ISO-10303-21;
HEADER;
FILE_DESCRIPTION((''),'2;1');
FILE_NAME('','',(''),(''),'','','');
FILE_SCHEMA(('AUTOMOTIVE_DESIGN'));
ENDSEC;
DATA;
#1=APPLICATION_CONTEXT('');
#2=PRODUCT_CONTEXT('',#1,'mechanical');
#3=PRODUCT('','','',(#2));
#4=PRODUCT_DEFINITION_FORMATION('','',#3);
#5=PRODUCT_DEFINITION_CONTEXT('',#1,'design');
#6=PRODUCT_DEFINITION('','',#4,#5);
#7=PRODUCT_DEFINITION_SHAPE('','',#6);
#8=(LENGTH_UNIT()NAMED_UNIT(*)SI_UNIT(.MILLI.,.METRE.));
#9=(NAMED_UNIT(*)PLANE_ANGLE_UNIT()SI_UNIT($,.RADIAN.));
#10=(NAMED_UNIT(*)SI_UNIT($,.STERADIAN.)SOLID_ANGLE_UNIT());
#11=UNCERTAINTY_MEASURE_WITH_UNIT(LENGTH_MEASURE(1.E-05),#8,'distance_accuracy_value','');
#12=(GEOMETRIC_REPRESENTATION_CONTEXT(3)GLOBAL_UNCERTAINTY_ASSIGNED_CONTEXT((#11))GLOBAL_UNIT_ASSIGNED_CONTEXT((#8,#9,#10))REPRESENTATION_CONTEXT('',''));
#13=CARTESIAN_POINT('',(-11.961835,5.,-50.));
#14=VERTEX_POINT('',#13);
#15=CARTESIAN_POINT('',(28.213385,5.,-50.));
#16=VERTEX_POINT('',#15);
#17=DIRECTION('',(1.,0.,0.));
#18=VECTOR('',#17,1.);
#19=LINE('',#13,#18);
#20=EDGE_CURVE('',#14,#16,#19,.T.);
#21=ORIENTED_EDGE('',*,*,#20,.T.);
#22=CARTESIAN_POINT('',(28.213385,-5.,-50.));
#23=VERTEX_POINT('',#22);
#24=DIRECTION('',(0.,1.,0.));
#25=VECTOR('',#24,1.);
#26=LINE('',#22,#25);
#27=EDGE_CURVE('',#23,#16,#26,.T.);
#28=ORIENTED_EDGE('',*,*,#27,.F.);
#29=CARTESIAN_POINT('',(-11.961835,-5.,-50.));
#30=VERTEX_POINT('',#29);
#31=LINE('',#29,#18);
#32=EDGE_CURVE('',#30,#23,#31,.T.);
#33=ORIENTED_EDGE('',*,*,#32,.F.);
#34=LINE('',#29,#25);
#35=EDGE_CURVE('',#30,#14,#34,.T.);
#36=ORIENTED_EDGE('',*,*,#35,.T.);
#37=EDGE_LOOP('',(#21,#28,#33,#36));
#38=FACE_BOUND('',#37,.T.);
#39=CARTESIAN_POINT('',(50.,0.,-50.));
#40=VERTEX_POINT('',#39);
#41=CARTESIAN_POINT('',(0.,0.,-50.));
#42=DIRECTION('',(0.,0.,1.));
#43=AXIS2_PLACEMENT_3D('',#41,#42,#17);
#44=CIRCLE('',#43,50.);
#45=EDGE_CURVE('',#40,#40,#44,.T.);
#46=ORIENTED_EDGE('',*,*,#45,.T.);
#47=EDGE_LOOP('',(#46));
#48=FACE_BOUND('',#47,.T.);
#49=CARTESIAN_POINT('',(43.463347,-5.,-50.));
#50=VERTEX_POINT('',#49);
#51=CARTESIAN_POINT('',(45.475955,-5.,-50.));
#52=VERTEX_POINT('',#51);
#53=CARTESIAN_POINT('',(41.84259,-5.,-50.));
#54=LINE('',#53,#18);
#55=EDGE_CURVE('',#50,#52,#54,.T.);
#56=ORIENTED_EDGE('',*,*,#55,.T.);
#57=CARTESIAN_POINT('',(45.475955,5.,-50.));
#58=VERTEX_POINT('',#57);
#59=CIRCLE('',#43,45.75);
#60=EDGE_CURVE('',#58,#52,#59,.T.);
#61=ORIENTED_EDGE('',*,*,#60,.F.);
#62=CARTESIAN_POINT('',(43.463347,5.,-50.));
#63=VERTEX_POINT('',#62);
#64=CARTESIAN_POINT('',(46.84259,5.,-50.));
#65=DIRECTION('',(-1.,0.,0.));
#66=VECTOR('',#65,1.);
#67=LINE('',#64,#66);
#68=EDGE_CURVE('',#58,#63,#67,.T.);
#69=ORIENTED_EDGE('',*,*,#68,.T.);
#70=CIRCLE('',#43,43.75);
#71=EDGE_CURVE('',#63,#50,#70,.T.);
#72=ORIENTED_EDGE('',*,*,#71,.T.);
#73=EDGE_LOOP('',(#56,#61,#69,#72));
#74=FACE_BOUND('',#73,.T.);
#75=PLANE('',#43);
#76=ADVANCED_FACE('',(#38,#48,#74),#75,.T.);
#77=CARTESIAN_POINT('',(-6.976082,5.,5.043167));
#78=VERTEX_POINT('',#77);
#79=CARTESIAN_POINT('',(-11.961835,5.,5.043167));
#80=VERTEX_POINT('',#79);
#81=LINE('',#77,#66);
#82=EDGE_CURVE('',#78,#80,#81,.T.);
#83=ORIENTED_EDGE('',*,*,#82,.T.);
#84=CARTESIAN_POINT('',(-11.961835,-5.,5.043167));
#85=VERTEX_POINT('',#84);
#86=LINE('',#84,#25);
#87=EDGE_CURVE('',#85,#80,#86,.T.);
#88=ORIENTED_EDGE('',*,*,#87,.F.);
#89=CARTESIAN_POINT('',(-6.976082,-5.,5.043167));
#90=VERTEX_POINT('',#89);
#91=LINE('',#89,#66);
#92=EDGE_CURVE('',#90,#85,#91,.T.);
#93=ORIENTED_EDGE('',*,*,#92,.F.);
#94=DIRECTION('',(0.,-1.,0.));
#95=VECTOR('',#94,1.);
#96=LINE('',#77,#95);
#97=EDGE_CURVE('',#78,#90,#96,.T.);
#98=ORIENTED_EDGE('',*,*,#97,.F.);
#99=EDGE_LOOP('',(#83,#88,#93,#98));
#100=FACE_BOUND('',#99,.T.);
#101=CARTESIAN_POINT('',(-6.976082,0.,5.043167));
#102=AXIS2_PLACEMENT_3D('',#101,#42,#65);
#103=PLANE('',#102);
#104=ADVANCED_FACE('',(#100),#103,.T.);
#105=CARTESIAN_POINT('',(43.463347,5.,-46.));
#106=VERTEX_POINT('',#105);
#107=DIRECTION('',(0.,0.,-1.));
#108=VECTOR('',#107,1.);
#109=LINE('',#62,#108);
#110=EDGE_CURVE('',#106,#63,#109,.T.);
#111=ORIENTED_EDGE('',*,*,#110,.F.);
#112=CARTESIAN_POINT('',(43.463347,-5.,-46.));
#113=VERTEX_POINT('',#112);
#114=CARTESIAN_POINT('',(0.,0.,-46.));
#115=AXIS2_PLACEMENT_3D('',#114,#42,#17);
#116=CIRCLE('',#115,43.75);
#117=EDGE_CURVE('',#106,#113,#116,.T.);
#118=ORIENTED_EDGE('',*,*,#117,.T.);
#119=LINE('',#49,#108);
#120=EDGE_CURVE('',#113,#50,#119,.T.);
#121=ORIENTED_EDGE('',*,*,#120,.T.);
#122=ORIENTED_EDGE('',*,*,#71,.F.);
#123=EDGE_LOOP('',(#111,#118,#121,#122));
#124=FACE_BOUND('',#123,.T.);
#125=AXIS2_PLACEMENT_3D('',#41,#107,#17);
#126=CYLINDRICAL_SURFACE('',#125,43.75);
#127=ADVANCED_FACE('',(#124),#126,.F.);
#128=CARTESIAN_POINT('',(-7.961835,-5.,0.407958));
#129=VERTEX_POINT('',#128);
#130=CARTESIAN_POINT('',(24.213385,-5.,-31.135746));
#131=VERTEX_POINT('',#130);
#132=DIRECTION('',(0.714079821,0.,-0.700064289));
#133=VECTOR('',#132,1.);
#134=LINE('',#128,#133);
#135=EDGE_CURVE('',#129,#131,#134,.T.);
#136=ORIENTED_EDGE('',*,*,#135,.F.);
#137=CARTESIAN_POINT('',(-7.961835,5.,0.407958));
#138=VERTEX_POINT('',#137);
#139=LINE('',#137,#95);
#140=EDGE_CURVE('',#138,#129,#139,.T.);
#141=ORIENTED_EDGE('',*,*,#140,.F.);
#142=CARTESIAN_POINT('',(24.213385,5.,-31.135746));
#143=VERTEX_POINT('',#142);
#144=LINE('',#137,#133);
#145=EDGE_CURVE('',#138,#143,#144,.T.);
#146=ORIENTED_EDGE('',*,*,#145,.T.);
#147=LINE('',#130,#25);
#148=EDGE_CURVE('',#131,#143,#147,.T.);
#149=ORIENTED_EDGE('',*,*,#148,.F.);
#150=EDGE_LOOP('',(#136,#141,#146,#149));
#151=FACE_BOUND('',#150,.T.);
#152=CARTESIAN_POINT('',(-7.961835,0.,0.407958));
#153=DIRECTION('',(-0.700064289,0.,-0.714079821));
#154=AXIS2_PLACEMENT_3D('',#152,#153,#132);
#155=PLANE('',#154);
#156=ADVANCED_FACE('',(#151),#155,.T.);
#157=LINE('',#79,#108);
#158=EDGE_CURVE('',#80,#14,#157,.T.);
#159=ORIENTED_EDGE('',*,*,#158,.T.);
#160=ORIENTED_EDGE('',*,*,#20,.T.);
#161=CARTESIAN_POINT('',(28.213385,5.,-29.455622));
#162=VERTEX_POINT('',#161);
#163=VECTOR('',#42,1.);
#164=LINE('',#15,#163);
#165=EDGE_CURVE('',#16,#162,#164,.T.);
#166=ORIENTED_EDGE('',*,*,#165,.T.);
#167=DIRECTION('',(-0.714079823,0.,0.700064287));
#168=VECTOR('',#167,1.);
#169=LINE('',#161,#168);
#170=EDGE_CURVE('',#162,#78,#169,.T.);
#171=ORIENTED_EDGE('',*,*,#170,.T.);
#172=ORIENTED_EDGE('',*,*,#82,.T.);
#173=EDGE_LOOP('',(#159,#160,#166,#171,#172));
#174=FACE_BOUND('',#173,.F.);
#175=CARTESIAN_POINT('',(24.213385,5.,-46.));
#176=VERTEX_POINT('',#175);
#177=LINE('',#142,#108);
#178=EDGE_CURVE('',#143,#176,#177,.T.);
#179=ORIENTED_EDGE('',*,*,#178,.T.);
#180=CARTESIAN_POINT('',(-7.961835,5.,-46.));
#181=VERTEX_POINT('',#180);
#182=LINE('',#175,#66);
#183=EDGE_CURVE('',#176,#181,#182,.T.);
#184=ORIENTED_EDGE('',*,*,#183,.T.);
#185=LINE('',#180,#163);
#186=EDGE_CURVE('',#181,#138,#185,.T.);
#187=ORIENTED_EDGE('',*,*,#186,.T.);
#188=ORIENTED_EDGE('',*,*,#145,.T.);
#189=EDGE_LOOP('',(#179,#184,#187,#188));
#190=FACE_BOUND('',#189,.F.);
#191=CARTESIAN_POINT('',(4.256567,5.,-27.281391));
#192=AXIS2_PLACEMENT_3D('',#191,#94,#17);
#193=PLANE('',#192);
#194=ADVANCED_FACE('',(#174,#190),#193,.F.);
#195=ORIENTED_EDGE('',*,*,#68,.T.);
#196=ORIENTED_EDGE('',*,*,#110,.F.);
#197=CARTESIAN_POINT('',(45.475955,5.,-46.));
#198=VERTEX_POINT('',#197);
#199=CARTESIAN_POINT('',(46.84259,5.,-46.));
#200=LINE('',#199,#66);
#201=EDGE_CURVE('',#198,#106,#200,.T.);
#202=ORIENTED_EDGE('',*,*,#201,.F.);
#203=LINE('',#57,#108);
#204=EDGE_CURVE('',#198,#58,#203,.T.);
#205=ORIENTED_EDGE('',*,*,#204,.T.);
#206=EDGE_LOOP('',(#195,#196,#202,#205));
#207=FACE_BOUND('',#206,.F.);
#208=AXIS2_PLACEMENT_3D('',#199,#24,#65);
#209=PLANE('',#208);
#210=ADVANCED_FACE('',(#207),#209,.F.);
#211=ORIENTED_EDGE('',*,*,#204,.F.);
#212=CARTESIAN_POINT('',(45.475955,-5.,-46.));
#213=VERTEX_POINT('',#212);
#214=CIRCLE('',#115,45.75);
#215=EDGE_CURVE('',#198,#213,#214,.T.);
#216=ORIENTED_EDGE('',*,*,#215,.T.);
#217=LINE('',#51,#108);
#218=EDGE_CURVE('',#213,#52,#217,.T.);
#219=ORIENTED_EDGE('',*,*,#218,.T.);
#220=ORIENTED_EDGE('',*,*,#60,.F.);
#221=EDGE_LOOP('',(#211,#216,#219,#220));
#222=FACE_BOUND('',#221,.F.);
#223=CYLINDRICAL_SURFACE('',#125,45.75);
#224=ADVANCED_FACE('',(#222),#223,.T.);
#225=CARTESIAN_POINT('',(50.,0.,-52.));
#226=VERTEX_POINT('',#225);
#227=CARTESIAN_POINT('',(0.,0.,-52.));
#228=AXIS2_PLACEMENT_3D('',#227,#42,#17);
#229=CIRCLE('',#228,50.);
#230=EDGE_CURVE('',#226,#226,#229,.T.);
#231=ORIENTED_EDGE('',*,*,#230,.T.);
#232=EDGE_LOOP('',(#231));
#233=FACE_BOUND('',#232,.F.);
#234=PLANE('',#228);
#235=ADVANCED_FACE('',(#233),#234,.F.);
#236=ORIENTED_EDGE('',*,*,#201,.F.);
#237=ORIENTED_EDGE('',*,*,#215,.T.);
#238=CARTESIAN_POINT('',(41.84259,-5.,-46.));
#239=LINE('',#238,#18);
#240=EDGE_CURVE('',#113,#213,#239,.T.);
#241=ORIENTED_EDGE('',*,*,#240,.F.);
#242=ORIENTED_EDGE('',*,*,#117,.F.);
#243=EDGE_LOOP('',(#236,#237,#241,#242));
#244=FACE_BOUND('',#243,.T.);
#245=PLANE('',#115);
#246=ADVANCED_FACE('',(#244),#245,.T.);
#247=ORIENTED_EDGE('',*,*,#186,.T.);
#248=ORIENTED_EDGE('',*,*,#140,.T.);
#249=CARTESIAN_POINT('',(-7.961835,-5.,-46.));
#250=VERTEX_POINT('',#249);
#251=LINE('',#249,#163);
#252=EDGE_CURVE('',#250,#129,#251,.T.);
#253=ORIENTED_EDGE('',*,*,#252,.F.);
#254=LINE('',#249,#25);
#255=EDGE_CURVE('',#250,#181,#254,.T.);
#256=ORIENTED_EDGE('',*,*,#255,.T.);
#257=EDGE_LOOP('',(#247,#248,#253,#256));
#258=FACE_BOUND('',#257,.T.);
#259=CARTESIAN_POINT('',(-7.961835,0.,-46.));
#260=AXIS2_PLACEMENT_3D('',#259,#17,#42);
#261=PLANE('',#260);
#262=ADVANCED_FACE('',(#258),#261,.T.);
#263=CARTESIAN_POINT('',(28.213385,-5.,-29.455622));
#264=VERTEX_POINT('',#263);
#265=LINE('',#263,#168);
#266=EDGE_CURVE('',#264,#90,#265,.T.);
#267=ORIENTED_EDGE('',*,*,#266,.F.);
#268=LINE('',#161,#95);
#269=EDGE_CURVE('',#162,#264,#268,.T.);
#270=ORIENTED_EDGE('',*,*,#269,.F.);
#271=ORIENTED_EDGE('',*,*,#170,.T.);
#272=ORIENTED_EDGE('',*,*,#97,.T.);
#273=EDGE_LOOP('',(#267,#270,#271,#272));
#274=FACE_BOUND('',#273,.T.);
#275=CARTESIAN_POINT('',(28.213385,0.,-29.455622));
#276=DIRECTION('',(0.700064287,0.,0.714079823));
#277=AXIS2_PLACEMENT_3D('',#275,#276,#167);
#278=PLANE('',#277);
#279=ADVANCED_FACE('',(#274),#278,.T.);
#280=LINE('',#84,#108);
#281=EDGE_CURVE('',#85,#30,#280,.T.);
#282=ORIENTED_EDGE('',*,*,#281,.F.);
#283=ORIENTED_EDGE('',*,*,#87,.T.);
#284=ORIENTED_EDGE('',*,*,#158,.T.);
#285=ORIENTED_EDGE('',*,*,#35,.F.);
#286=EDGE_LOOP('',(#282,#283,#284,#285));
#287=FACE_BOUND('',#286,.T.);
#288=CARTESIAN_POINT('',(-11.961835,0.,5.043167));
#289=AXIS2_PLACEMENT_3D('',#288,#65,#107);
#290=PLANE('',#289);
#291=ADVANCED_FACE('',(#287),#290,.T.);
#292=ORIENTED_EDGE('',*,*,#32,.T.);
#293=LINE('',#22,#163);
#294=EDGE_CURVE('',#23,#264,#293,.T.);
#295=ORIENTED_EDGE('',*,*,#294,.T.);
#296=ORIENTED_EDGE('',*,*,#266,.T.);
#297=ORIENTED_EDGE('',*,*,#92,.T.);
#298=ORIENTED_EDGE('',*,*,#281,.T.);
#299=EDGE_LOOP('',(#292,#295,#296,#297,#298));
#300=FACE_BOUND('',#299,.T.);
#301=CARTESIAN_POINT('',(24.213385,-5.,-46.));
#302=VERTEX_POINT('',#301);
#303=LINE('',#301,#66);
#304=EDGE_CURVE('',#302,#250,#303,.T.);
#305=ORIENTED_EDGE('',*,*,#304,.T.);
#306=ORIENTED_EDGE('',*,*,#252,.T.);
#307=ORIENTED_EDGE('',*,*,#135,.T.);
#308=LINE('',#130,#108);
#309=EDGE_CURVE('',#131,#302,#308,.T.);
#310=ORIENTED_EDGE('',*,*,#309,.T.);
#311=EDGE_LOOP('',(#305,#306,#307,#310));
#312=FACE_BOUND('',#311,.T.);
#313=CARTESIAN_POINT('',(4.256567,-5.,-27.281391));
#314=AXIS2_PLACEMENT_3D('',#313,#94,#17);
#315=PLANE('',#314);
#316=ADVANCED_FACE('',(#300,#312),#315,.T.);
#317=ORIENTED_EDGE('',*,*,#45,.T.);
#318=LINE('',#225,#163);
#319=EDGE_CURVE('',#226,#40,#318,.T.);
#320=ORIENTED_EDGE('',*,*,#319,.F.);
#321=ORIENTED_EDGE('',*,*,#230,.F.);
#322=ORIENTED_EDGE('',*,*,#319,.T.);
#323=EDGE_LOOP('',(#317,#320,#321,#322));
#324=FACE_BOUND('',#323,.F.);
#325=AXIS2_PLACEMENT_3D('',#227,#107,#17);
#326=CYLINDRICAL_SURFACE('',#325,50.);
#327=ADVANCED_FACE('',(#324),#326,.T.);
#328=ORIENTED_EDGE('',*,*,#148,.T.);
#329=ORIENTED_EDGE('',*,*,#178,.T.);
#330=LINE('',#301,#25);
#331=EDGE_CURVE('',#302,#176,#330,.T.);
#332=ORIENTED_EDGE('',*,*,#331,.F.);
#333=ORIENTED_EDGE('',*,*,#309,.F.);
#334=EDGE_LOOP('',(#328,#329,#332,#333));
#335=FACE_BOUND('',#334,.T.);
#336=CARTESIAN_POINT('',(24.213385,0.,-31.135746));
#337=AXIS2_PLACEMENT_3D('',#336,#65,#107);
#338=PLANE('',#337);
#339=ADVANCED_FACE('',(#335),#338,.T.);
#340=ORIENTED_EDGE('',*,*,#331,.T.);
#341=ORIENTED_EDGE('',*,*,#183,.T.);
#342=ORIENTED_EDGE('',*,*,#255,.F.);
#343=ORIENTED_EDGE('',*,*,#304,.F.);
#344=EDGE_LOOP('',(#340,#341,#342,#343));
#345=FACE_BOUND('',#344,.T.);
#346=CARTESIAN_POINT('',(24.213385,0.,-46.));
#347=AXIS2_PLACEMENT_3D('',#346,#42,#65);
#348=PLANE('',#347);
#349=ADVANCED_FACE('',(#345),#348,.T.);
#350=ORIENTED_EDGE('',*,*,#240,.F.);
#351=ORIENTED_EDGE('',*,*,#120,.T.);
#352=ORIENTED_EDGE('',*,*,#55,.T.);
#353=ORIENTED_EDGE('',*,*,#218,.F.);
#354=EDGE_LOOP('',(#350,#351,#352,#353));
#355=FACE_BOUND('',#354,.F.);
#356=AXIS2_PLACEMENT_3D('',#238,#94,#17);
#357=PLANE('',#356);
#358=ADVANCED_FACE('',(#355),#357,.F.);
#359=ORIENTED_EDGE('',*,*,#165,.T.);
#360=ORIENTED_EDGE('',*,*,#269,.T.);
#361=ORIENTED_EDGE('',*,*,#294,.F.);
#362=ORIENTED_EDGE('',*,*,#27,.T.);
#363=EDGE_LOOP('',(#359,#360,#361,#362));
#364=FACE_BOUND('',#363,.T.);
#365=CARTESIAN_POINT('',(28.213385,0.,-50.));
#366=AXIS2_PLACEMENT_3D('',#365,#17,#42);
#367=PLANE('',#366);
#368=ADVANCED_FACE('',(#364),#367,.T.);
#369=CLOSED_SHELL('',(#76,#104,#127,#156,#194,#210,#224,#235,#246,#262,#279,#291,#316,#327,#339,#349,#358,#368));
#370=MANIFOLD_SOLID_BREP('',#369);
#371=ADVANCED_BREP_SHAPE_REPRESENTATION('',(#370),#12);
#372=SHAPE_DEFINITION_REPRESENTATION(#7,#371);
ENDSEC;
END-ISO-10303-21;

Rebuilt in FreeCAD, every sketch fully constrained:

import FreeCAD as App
import Part
import Sketcher


def add_polygon(sketch, points):
    """Adds a closed chain of lines whose ends are joined by coincident constraints."""
    first, n = sketch.GeometryCount, len(points)
    for a, b in zip(points, points[1:] + points[:1]):
        sketch.addGeometry(Part.LineSegment(App.Vector(*a, 0), App.Vector(*b, 0)), False)
    for i in range(n):
        sketch.addConstraint(Sketcher.Constraint("Coincident", first + i, 2, first + (i + 1) % n, 1))

doc = App.newDocument("Part")
body = doc.addObject("PartDesign::Body", "Body")

# Sketch on XY plane
sketch1 = body.newObject("Sketcher::SketchObject", "Sketch")
sketch1.AttachmentSupport = (doc.getObject("XY_Plane"), [""])
sketch1.MapMode = "FlatFace"
sketch1.AttachmentOffset = App.Placement(App.Vector(0, 0, -52), App.Rotation())
sketch1.addGeometry(Part.Circle(App.Vector(0, 0, 0), App.Vector(0, 0, 1), 50), False)
sketch1.addConstraint([
    Sketcher.Constraint("Coincident", 0, 3, -1, 1),
    Sketcher.Constraint("Diameter", 0, 100.0),
])
pad1 = body.newObject("PartDesign::Pad", "Pad")
pad1.Profile = sketch1
pad1.Length = 2

# Sketch on XY plane
sketch2 = body.newObject("Sketcher::SketchObject", "Sketch001")
sketch2.AttachmentSupport = (doc.getObject("XY_Plane"), [""])
sketch2.MapMode = "FlatFace"
sketch2.AttachmentOffset = App.Placement(App.Vector(0, 0, -50), App.Rotation())
sketch2.addGeometry([
    Part.Circle(App.Vector(0, 0, 0), App.Vector(0, 0, 1), 46),
    Part.Circle(App.Vector(0, 0, 0), App.Vector(0, 0, 1), 44),
], False)
sketch2.addConstraint([
    Sketcher.Constraint("Coincident", 0, 3, -1, 1),
    Sketcher.Constraint("Coincident", 1, 3, -1, 1),
    Sketcher.Constraint("Diameter", 0, 91.5),
    Sketcher.Constraint("Diameter", 1, 87.5),
])
pad2 = body.newObject("PartDesign::Pad", "Pad001")
pad2.Profile = sketch2
pad2.Length = 4

# Sketch on XY plane
sketch3 = body.newObject("Sketcher::SketchObject", "Sketch002")
sketch3.AttachmentSupport = (doc.getObject("XY_Plane"), [""])
sketch3.MapMode = "FlatFace"
sketch3.AttachmentOffset = App.Placement(App.Vector(0, 0, -46), App.Rotation())
add_polygon(sketch3, [(47, 5), (42, 5), (42, -5), (47, -5)])  # lines 0-3
sketch3.addConstraint([
    Sketcher.Constraint("Horizontal", 0),
    Sketcher.Constraint("Vertical", 1),
    Sketcher.Constraint("Horizontal", 2),
    Sketcher.Constraint("Vertical", 3),
    Sketcher.Constraint("DistanceX", 0, 2, 0, 1, 5.0),
    Sketcher.Constraint("DistanceY", 1, 2, 1, 1, 10.0),
    Sketcher.Constraint("DistanceY", -1, 1, 0, 2, 5.0),
    Sketcher.Constraint("DistanceX", -1, 1, 0, 2, 41.84259),
])
pocket1 = body.newObject("PartDesign::Pocket", "Pocket")
pocket1.Profile = sketch3
pocket1.Length = 4

# Sketch on XZ plane
sketch4 = body.newObject("Sketcher::SketchObject", "Sketch003")
sketch4.AttachmentSupport = (doc.getObject("XZ_Plane"), [""])
sketch4.MapMode = "FlatFace"
add_polygon(sketch4, [(28.2, -50), (28.2, -29.5), (-7, 5), (-12, 5), (-12, -50)])  # lines 0-4
add_polygon(sketch4, [(-8, -46), (-8, 0.4), (24.2, -31.1), (24.2, -46)])  # lines 5-8
sketch4.addConstraint([
    Sketcher.Constraint("Vertical", 0),
    Sketcher.Constraint("Horizontal", 2),
    Sketcher.Constraint("Vertical", 3),
    Sketcher.Constraint("Horizontal", 4),
    Sketcher.Constraint("Vertical", 5),
    Sketcher.Constraint("Vertical", 7),
    Sketcher.Constraint("Horizontal", 8),
    Sketcher.Constraint("Parallel", 1, 6),
    Sketcher.Constraint("DistanceY", 3, 2, -1, 1, 50.0),
    Sketcher.Constraint("DistanceY", 7, 2, -1, 1, 46.0),
    Sketcher.Constraint("DistanceX", 2, 2, 5, 2, 4.0),
    Sketcher.Constraint("DistanceX", 6, 2, 0, 2, 4.0),
    Sketcher.Constraint("DistanceX", 4, 1, 4, 2, 40.17522),
    Sketcher.Constraint("Distance", 1, 49.279459),
    Sketcher.Constraint("DistanceX", 2, 2, 2, 1, 4.985753),
    Sketcher.Constraint("DistanceY", 0, 1, 0, 2, 20.544378),
    Sketcher.Constraint("DistanceY", 5, 1, 5, 2, 46.407958),
    Sketcher.Constraint("DistanceX", -1, 1, 0, 2, 28.213385),
])
pad3 = body.newObject("PartDesign::Pad", "Pad002")
pad3.Profile = sketch4
pad3.Length = 10
pad3.Midplane = True

doc.recompute()
